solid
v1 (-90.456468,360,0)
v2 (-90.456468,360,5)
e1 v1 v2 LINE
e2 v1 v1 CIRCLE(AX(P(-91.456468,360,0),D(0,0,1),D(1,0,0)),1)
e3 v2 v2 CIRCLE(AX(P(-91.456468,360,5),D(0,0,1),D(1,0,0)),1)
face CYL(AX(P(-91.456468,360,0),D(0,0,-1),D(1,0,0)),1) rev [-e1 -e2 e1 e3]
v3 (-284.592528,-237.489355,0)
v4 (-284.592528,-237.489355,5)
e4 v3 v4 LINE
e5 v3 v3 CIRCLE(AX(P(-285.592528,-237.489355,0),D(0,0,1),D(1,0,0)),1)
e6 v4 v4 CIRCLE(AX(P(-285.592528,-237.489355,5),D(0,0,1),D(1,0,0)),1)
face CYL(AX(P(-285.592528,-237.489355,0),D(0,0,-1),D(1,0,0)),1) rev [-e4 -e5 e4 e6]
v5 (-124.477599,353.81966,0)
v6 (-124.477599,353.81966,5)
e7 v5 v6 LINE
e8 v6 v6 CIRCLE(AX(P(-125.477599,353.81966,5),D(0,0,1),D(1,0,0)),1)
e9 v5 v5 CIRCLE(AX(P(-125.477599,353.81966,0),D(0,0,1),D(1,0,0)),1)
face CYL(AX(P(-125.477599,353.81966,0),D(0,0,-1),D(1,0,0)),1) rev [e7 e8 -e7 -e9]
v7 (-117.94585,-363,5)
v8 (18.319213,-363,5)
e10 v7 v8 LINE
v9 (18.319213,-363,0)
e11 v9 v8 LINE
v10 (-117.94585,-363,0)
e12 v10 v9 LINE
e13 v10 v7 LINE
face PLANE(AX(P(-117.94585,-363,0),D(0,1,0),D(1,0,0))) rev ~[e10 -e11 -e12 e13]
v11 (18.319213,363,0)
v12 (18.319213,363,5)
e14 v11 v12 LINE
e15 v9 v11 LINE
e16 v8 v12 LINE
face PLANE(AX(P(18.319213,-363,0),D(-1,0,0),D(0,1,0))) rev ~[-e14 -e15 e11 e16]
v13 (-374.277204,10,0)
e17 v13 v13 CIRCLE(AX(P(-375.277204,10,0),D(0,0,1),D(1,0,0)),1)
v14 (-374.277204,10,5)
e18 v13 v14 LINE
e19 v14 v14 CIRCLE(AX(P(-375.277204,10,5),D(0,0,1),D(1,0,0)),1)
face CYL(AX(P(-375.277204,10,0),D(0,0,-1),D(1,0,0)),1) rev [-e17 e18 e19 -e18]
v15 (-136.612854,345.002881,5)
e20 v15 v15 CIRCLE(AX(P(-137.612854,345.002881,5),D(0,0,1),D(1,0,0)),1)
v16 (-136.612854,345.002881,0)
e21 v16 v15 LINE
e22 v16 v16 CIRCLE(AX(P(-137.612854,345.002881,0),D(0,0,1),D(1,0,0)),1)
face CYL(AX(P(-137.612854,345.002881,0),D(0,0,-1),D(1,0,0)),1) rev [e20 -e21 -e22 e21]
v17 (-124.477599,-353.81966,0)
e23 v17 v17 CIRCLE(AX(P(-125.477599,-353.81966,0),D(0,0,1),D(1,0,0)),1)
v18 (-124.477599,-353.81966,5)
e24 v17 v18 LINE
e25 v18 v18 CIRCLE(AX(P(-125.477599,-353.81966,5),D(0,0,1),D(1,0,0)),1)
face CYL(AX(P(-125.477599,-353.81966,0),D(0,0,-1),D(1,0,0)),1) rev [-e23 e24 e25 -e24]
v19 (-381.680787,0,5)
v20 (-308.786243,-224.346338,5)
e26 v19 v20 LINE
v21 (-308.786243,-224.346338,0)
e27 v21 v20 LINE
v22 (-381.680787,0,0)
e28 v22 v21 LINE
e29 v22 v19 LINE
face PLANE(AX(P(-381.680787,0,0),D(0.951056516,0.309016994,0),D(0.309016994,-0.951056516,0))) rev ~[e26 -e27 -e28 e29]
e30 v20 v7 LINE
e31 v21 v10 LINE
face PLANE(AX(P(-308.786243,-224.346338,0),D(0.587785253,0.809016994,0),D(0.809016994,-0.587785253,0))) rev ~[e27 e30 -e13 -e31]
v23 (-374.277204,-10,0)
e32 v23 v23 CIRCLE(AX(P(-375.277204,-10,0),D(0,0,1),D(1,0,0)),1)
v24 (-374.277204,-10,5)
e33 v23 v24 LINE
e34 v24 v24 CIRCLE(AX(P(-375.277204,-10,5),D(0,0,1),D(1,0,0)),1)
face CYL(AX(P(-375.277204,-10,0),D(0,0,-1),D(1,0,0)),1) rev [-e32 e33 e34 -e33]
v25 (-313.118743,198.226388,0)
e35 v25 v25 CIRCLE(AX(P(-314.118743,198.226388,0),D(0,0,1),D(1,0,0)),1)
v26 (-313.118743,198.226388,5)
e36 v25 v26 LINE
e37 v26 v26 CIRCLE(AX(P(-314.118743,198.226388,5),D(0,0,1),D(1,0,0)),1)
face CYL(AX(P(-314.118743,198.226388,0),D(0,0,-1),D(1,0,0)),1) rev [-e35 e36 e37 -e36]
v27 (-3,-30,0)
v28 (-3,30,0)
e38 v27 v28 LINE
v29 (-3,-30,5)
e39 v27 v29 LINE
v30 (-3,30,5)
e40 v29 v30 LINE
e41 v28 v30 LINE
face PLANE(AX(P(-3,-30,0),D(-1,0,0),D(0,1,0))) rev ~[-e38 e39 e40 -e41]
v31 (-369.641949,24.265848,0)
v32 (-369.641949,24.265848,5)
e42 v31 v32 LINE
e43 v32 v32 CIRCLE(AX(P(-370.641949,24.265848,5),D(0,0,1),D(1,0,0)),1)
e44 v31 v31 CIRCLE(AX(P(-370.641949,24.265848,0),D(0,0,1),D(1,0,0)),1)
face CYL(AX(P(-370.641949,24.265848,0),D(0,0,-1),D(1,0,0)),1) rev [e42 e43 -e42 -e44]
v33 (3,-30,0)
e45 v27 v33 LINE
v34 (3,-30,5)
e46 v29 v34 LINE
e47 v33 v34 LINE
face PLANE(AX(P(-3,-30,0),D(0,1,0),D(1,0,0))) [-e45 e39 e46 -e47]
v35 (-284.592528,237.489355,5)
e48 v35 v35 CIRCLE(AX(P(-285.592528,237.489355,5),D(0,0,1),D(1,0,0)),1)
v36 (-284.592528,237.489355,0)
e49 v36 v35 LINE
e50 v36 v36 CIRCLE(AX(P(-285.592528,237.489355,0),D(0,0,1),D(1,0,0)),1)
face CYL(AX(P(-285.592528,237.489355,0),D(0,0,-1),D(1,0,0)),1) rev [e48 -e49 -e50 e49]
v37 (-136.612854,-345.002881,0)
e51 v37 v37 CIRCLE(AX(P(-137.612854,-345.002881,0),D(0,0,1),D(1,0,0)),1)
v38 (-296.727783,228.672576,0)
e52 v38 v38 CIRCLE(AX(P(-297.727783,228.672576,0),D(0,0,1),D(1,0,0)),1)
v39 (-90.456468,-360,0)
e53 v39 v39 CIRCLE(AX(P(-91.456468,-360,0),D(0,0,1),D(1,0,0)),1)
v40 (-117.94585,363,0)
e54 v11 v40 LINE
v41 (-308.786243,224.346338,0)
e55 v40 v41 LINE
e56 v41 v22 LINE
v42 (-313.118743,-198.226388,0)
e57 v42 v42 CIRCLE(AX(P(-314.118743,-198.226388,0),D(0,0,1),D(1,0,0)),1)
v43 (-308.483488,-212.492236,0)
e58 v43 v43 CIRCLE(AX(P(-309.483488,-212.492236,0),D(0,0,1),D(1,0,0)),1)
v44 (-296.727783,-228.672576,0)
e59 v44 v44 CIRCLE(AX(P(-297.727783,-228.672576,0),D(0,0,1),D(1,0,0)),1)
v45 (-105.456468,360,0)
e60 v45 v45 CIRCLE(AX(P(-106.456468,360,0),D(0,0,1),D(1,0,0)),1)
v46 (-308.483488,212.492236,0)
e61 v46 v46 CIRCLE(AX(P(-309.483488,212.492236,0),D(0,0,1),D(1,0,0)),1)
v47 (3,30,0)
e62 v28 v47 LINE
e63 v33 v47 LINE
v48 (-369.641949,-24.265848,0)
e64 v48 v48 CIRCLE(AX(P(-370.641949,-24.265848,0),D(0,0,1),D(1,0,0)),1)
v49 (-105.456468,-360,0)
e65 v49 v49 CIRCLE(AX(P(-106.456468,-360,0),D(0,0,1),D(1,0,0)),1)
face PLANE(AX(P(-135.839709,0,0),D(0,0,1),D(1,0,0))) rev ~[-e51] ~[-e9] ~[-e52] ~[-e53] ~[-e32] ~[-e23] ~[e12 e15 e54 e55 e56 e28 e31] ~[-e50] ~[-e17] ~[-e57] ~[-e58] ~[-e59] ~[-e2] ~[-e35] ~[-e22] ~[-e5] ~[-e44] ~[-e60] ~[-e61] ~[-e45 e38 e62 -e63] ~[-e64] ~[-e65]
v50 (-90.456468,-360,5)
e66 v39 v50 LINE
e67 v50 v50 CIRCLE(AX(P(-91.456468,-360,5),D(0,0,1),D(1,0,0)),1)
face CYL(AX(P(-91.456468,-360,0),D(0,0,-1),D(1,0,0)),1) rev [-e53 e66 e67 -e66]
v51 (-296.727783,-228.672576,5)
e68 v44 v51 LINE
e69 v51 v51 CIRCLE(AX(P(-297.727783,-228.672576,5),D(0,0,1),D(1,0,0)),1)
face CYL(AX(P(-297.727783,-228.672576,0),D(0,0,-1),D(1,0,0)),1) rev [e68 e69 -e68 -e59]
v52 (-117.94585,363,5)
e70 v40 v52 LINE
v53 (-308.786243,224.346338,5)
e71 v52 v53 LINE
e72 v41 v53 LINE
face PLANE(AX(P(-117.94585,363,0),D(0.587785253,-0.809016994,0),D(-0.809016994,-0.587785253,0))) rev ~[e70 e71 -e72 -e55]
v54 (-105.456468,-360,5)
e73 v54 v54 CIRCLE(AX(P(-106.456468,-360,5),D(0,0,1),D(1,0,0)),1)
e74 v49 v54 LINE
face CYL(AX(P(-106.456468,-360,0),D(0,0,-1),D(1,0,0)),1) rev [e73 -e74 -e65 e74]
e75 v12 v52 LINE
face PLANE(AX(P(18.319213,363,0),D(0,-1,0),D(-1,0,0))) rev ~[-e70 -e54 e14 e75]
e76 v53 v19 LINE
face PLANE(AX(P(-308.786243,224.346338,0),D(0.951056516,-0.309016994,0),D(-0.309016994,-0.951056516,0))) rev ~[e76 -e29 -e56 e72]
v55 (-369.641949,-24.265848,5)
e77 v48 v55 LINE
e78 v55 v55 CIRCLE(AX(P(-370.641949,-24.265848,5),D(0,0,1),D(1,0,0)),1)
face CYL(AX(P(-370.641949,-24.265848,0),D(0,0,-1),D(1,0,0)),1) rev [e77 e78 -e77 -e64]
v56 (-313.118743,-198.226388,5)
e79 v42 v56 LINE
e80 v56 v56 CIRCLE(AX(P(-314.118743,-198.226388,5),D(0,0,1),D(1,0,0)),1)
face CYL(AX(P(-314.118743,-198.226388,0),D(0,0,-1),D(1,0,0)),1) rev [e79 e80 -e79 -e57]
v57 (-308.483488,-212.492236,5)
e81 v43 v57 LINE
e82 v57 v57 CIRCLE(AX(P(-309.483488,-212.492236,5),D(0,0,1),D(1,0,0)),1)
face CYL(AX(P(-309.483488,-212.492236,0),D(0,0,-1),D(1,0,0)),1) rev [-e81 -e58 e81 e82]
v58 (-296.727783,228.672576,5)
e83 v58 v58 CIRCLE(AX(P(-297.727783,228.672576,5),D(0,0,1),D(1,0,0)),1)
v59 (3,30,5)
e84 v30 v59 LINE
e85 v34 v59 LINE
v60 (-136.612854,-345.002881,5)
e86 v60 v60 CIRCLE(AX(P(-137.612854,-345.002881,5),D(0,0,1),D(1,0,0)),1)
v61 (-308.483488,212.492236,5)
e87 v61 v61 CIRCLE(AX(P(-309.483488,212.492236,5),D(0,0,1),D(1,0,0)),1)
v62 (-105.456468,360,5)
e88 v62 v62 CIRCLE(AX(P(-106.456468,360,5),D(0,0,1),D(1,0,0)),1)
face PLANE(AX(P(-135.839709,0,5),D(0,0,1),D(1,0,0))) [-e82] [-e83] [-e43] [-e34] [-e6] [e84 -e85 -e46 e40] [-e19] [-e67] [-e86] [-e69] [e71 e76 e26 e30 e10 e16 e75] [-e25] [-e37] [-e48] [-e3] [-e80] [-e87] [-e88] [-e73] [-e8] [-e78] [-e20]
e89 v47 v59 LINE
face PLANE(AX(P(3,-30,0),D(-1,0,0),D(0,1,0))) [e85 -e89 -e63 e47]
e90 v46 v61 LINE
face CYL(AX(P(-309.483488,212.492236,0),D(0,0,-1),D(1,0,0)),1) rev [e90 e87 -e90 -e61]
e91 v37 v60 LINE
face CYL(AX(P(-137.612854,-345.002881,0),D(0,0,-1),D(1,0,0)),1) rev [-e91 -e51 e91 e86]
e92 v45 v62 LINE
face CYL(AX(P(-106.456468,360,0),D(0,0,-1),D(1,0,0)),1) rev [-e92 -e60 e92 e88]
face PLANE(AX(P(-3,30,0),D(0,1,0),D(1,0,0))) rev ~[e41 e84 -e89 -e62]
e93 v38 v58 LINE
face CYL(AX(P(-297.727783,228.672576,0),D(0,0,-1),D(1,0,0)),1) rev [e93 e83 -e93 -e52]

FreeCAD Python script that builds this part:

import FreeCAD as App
import Part
import Sketcher
from FreeCAD import Vector
Q = App.Units.Quantity


def add_polygon(sketch, points):
    """Adds a closed chain of lines whose ends are joined by coincident constraints."""
    first, n = sketch.GeometryCount, len(points)
    for a, b in zip(points, points[1:] + points[:1]):
        sketch.addGeometry(Part.LineSegment(App.Vector(*a, 0), App.Vector(*b, 0)), False)
    for i in range(n):
        sketch.addConstraint(Sketcher.Constraint("Coincident", first + i, 2, first + (i + 1) % n, 1))

doc = App.newDocument("Part")
body = doc.addObject("PartDesign::Body", "Body")

# Sketch on XY plane
sketch1 = body.newObject("Sketcher::SketchObject", "Sketch")
sketch1.AttachmentSupport = (doc.getObject("XY_Plane"), [""])
sketch1.MapMode = "FlatFace"
add_polygon(sketch1, [(-117.9, -363), (18.3, -363), (18.3, 363), (-117.9, 363), (-308.8, 224.3), (-381.7, 0), (-308.8, -224.3)])  # lines 0-6
sketch1.addGeometry(Part.Circle(Vector(-297.7, -228.7, 0), Vector(0, 0, 1), 1), False)  # 7
sketch1.addGeometry(Part.Circle(Vector(-285.6, -237.5, 0), Vector(0, 0, 1), 1), False)  # 8
sketch1.addGeometry(Part.Circle(Vector(-309.5, -212.5, 0), Vector(0, 0, 1), 1), False)  # 9
sketch1.addGeometry(Part.Circle(Vector(-314.1, -198.2, 0), Vector(0, 0, 1), 1), False)  # 10
sketch1.addGeometry(Part.Circle(Vector(-370.6, -24.3, 0), Vector(0, 0, 1), 1), False)  # 11
sketch1.addGeometry(Part.Circle(Vector(-375.3, -10, 0), Vector(0, 0, 1), 1), False)  # 12
sketch1.addGeometry(Part.Circle(Vector(-137.6, -345, 0), Vector(0, 0, 1), 1), False)  # 13
sketch1.addGeometry(Part.Circle(Vector(-125.5, -353.8, 0), Vector(0, 0, 1), 1), False)  # 14
sketch1.addGeometry(Part.Circle(Vector(-106.5, -360, 0), Vector(0, 0, 1), 1), False)  # 15
sketch1.addGeometry(Part.Circle(Vector(-91.5, -360, 0), Vector(0, 0, 1), 1), False)  # 16
sketch1.addGeometry(Part.Circle(Vector(-375.3, 10, 0), Vector(0, 0, 1), 1), False)  # 17
sketch1.addGeometry(Part.Circle(Vector(-370.6, 24.3, 0), Vector(0, 0, 1), 1), False)  # 18
sketch1.addGeometry(Part.Circle(Vector(-314.1, 198.2, 0), Vector(0, 0, 1), 1), False)  # 19
sketch1.addGeometry(Part.Circle(Vector(-309.5, 212.5, 0), Vector(0, 0, 1), 1), False)  # 20
sketch1.addGeometry(Part.Circle(Vector(-297.7, 228.7, 0), Vector(0, 0, 1), 1), False)  # 21
sketch1.addGeometry(Part.Circle(Vector(-285.6, 237.5, 0), Vector(0, 0, 1), 1), False)  # 22
add_polygon(sketch1, [(3, -30), (-3, -30), (-3, 30), (3, 30)])  # lines 23-26
sketch1.addGeometry(Part.Circle(Vector(-137.6, 345, 0), Vector(0, 0, 1), 1), False)  # 27
sketch1.addGeometry(Part.Circle(Vector(-125.5, 353.8, 0), Vector(0, 0, 1), 1), False)  # 28
sketch1.addGeometry(Part.Circle(Vector(-106.5, 360, 0), Vector(0, 0, 1), 1), False)  # 29
sketch1.addGeometry(Part.Circle(Vector(-91.5, 360, 0), Vector(0, 0, 1), 1), False)  # 30
sketch1.addConstraint(Sketcher.Constraint("Horizontal", 0))
sketch1.addConstraint(Sketcher.Constraint("Vertical", 1))
sketch1.addConstraint(Sketcher.Constraint("Horizontal", 2))
sketch1.addConstraint(Sketcher.Constraint("Horizontal", 23))
sketch1.addConstraint(Sketcher.Constraint("Vertical", 24))
sketch1.addConstraint(Sketcher.Constraint("Horizontal", 25))
sketch1.addConstraint(Sketcher.Constraint("Vertical", 26))
sketch1.addConstraint(Sketcher.Constraint("Equal", 7, 8))
sketch1.addConstraint(Sketcher.Constraint("Equal", 8, 9))
sketch1.addConstraint(Sketcher.Constraint("Equal", 9, 10))
sketch1.addConstraint(Sketcher.Constraint("Equal", 10, 11))
sketch1.addConstraint(Sketcher.Constraint("Equal", 11, 12))
sketch1.addConstraint(Sketcher.Constraint("Equal", 12, 13))
sketch1.addConstraint(Sketcher.Constraint("Equal", 13, 14))
sketch1.addConstraint(Sketcher.Constraint("Equal", 14, 15))
sketch1.addConstraint(Sketcher.Constraint("Equal", 15, 16))
sketch1.addConstraint(Sketcher.Constraint("Equal", 16, 17))
sketch1.addConstraint(Sketcher.Constraint("Equal", 17, 18))
sketch1.addConstraint(Sketcher.Constraint("Equal", 18, 19))
sketch1.addConstraint(Sketcher.Constraint("Equal", 19, 20))
sketch1.addConstraint(Sketcher.Constraint("Equal", 20, 21))
sketch1.addConstraint(Sketcher.Constraint("Equal", 21, 22))
sketch1.addConstraint(Sketcher.Constraint("Equal", 22, 27))
sketch1.addConstraint(Sketcher.Constraint("Equal", 27, 28))
sketch1.addConstraint(Sketcher.Constraint("Equal", 28, 29))
sketch1.addConstraint(Sketcher.Constraint("Equal", 29, 30))
sketch1.addConstraint(Sketcher.Constraint("Symmetric", 23, 2, 25, 2, -1, 1))
sketch1.addConstraint(Sketcher.Constraint("Symmetric", 12, 3, 17, 3, -1))
sketch1.addConstraint(Sketcher.Constraint("Symmetric", 11, 3, 18, 3, -1))
sketch1.addConstraint(Sketcher.Constraint("Symmetric", 10, 3, 19, 3, -1))
sketch1.addConstraint(Sketcher.Constraint("Symmetric", 9, 3, 20, 3, -1))
sketch1.addConstraint(Sketcher.Constraint("Symmetric", 7, 3, 21, 3, -1))
sketch1.addConstraint(Sketcher.Constraint("Symmetric", 8, 3, 22, 3, -1))
sketch1.addConstraint(Sketcher.Constraint("Symmetric", 13, 3, 27, 3, -1))
sketch1.addConstraint(Sketcher.Constraint("Symmetric", 14, 3, 28, 3, -1))
sketch1.addConstraint(Sketcher.Constraint("Symmetric", 15, 3, 29, 3, -1))
sketch1.addConstraint(Sketcher.Constraint("Symmetric", 16, 3, 30, 3, -1))
sketch1.addConstraint(Sketcher.Constraint("Symmetric", 3, 2, 5, 2, -1))
sketch1.addConstraint(Sketcher.Constraint("Symmetric", 2, 2, 6, 2, -1))
sketch1.addConstraint(Sketcher.Constraint("PointOnObject", 4, 2, -1))
sketch1.addConstraint(Sketcher.Constraint("Horizontal", 15, 3, 16, 3))
sketch1.addConstraint(Sketcher.Constraint("Equal", 3, 4))
sketch1.addConstraint(Sketcher.Constraint("Diameter", 7, Q("2 mm")))
sketch1.addConstraint(Sketcher.Constraint("DistanceX", 23, 2, 23, 1, Q("6 mm")))
sketch1.addConstraint(Sketcher.Constraint("DistanceY", 1, 1, 1, 2, Q("726 mm")))
sketch1.addConstraint(Sketcher.Constraint("DistanceY", 24, 1, 24, 2, Q("60 mm")))
sketch1.addConstraint(Sketcher.Constraint("Angle", 3, Q("-144 deg")))
sketch1.addConstraint(Sketcher.Constraint("Angle", 4, Q("-108 deg")))
sketch1.addConstraint(Sketcher.Constraint("DistanceY", 12, 3, -1, 1, Q("10 mm")))
sketch1.addConstraint(Sketcher.Constraint("DistanceY", 15, 3, -1, 1, Q("360 mm")))
sketch1.addConstraint(Sketcher.Constraint("DistanceX", 15, 3, 16, 3, Q("15 mm")))
sketch1.addConstraint(Sketcher.Constraint("DistanceX", 14, 3, -1, 1, Q("125.477599 mm")))
sketch1.addConstraint(Sketcher.Constraint("DistanceX", 19, 3, 3, 2, Q("5.3325 mm")))
sketch1.addConstraint(Sketcher.Constraint("DistanceX", 0, 1, 0, 2, Q("136.265063 mm")))
sketch1.addConstraint(Sketcher.Constraint("DistanceX", 8, 3, -1, 1, Q("285.592528 mm")))
sketch1.addConstraint(Sketcher.Constraint("DistanceX", 9, 3, -1, 1, Q("309.483488 mm")))
sketch1.addConstraint(Sketcher.Constraint("DistanceX", 11, 3, -1, 1, Q("370.641949 mm")))
sketch1.addConstraint(Sketcher.Constraint("DistanceY", 13, 3, -1, 1, Q("345.002881 mm")))
sketch1.addConstraint(Sketcher.Constraint("DistanceY", 14, 3, -1, 1, Q("353.81966 mm")))
sketch1.addConstraint(Sketcher.Constraint("DistanceX", 15, 3, -1, 1, Q("106.456468 mm")))
sketch1.addConstraint(Sketcher.Constraint("DistanceX", 2, 2, -1, 1, Q("117.94585 mm")))
sketch1.addConstraint(Sketcher.Constraint("DistanceY", 8, 3, 7, 3, Q("8.816779 mm")))
sketch1.addConstraint(Sketcher.Constraint("DistanceY", 7, 3, 9, 3, Q("16.18034 mm")))
sketch1.addConstraint(Sketcher.Constraint("DistanceY", 9, 3, 10, 3, Q("14.265848 mm")))
sketch1.addConstraint(Sketcher.Constraint("DistanceX", 10, 3, 7, 3, Q("16.39096 mm")))
sketch1.addConstraint(Sketcher.Constraint("DistanceY", 10, 3, 11, 3, Q("173.96054 mm")))
sketch1.addConstraint(Sketcher.Constraint("DistanceX", 12, 3, 10, 3, Q("61.158461 mm")))
sketch1.addConstraint(Sketcher.Constraint("DistanceX", 7, 3, 13, 3, Q("160.114929 mm")))
sketch1.addConstraint(Sketcher.Constraint("DistanceY", 19, 3, 3, 2, Q("26.11995 mm")))
pad1 = body.newObject("PartDesign::Pad", "Pad")
pad1.Profile = sketch1
pad1.Length = 5

doc.recompute()
